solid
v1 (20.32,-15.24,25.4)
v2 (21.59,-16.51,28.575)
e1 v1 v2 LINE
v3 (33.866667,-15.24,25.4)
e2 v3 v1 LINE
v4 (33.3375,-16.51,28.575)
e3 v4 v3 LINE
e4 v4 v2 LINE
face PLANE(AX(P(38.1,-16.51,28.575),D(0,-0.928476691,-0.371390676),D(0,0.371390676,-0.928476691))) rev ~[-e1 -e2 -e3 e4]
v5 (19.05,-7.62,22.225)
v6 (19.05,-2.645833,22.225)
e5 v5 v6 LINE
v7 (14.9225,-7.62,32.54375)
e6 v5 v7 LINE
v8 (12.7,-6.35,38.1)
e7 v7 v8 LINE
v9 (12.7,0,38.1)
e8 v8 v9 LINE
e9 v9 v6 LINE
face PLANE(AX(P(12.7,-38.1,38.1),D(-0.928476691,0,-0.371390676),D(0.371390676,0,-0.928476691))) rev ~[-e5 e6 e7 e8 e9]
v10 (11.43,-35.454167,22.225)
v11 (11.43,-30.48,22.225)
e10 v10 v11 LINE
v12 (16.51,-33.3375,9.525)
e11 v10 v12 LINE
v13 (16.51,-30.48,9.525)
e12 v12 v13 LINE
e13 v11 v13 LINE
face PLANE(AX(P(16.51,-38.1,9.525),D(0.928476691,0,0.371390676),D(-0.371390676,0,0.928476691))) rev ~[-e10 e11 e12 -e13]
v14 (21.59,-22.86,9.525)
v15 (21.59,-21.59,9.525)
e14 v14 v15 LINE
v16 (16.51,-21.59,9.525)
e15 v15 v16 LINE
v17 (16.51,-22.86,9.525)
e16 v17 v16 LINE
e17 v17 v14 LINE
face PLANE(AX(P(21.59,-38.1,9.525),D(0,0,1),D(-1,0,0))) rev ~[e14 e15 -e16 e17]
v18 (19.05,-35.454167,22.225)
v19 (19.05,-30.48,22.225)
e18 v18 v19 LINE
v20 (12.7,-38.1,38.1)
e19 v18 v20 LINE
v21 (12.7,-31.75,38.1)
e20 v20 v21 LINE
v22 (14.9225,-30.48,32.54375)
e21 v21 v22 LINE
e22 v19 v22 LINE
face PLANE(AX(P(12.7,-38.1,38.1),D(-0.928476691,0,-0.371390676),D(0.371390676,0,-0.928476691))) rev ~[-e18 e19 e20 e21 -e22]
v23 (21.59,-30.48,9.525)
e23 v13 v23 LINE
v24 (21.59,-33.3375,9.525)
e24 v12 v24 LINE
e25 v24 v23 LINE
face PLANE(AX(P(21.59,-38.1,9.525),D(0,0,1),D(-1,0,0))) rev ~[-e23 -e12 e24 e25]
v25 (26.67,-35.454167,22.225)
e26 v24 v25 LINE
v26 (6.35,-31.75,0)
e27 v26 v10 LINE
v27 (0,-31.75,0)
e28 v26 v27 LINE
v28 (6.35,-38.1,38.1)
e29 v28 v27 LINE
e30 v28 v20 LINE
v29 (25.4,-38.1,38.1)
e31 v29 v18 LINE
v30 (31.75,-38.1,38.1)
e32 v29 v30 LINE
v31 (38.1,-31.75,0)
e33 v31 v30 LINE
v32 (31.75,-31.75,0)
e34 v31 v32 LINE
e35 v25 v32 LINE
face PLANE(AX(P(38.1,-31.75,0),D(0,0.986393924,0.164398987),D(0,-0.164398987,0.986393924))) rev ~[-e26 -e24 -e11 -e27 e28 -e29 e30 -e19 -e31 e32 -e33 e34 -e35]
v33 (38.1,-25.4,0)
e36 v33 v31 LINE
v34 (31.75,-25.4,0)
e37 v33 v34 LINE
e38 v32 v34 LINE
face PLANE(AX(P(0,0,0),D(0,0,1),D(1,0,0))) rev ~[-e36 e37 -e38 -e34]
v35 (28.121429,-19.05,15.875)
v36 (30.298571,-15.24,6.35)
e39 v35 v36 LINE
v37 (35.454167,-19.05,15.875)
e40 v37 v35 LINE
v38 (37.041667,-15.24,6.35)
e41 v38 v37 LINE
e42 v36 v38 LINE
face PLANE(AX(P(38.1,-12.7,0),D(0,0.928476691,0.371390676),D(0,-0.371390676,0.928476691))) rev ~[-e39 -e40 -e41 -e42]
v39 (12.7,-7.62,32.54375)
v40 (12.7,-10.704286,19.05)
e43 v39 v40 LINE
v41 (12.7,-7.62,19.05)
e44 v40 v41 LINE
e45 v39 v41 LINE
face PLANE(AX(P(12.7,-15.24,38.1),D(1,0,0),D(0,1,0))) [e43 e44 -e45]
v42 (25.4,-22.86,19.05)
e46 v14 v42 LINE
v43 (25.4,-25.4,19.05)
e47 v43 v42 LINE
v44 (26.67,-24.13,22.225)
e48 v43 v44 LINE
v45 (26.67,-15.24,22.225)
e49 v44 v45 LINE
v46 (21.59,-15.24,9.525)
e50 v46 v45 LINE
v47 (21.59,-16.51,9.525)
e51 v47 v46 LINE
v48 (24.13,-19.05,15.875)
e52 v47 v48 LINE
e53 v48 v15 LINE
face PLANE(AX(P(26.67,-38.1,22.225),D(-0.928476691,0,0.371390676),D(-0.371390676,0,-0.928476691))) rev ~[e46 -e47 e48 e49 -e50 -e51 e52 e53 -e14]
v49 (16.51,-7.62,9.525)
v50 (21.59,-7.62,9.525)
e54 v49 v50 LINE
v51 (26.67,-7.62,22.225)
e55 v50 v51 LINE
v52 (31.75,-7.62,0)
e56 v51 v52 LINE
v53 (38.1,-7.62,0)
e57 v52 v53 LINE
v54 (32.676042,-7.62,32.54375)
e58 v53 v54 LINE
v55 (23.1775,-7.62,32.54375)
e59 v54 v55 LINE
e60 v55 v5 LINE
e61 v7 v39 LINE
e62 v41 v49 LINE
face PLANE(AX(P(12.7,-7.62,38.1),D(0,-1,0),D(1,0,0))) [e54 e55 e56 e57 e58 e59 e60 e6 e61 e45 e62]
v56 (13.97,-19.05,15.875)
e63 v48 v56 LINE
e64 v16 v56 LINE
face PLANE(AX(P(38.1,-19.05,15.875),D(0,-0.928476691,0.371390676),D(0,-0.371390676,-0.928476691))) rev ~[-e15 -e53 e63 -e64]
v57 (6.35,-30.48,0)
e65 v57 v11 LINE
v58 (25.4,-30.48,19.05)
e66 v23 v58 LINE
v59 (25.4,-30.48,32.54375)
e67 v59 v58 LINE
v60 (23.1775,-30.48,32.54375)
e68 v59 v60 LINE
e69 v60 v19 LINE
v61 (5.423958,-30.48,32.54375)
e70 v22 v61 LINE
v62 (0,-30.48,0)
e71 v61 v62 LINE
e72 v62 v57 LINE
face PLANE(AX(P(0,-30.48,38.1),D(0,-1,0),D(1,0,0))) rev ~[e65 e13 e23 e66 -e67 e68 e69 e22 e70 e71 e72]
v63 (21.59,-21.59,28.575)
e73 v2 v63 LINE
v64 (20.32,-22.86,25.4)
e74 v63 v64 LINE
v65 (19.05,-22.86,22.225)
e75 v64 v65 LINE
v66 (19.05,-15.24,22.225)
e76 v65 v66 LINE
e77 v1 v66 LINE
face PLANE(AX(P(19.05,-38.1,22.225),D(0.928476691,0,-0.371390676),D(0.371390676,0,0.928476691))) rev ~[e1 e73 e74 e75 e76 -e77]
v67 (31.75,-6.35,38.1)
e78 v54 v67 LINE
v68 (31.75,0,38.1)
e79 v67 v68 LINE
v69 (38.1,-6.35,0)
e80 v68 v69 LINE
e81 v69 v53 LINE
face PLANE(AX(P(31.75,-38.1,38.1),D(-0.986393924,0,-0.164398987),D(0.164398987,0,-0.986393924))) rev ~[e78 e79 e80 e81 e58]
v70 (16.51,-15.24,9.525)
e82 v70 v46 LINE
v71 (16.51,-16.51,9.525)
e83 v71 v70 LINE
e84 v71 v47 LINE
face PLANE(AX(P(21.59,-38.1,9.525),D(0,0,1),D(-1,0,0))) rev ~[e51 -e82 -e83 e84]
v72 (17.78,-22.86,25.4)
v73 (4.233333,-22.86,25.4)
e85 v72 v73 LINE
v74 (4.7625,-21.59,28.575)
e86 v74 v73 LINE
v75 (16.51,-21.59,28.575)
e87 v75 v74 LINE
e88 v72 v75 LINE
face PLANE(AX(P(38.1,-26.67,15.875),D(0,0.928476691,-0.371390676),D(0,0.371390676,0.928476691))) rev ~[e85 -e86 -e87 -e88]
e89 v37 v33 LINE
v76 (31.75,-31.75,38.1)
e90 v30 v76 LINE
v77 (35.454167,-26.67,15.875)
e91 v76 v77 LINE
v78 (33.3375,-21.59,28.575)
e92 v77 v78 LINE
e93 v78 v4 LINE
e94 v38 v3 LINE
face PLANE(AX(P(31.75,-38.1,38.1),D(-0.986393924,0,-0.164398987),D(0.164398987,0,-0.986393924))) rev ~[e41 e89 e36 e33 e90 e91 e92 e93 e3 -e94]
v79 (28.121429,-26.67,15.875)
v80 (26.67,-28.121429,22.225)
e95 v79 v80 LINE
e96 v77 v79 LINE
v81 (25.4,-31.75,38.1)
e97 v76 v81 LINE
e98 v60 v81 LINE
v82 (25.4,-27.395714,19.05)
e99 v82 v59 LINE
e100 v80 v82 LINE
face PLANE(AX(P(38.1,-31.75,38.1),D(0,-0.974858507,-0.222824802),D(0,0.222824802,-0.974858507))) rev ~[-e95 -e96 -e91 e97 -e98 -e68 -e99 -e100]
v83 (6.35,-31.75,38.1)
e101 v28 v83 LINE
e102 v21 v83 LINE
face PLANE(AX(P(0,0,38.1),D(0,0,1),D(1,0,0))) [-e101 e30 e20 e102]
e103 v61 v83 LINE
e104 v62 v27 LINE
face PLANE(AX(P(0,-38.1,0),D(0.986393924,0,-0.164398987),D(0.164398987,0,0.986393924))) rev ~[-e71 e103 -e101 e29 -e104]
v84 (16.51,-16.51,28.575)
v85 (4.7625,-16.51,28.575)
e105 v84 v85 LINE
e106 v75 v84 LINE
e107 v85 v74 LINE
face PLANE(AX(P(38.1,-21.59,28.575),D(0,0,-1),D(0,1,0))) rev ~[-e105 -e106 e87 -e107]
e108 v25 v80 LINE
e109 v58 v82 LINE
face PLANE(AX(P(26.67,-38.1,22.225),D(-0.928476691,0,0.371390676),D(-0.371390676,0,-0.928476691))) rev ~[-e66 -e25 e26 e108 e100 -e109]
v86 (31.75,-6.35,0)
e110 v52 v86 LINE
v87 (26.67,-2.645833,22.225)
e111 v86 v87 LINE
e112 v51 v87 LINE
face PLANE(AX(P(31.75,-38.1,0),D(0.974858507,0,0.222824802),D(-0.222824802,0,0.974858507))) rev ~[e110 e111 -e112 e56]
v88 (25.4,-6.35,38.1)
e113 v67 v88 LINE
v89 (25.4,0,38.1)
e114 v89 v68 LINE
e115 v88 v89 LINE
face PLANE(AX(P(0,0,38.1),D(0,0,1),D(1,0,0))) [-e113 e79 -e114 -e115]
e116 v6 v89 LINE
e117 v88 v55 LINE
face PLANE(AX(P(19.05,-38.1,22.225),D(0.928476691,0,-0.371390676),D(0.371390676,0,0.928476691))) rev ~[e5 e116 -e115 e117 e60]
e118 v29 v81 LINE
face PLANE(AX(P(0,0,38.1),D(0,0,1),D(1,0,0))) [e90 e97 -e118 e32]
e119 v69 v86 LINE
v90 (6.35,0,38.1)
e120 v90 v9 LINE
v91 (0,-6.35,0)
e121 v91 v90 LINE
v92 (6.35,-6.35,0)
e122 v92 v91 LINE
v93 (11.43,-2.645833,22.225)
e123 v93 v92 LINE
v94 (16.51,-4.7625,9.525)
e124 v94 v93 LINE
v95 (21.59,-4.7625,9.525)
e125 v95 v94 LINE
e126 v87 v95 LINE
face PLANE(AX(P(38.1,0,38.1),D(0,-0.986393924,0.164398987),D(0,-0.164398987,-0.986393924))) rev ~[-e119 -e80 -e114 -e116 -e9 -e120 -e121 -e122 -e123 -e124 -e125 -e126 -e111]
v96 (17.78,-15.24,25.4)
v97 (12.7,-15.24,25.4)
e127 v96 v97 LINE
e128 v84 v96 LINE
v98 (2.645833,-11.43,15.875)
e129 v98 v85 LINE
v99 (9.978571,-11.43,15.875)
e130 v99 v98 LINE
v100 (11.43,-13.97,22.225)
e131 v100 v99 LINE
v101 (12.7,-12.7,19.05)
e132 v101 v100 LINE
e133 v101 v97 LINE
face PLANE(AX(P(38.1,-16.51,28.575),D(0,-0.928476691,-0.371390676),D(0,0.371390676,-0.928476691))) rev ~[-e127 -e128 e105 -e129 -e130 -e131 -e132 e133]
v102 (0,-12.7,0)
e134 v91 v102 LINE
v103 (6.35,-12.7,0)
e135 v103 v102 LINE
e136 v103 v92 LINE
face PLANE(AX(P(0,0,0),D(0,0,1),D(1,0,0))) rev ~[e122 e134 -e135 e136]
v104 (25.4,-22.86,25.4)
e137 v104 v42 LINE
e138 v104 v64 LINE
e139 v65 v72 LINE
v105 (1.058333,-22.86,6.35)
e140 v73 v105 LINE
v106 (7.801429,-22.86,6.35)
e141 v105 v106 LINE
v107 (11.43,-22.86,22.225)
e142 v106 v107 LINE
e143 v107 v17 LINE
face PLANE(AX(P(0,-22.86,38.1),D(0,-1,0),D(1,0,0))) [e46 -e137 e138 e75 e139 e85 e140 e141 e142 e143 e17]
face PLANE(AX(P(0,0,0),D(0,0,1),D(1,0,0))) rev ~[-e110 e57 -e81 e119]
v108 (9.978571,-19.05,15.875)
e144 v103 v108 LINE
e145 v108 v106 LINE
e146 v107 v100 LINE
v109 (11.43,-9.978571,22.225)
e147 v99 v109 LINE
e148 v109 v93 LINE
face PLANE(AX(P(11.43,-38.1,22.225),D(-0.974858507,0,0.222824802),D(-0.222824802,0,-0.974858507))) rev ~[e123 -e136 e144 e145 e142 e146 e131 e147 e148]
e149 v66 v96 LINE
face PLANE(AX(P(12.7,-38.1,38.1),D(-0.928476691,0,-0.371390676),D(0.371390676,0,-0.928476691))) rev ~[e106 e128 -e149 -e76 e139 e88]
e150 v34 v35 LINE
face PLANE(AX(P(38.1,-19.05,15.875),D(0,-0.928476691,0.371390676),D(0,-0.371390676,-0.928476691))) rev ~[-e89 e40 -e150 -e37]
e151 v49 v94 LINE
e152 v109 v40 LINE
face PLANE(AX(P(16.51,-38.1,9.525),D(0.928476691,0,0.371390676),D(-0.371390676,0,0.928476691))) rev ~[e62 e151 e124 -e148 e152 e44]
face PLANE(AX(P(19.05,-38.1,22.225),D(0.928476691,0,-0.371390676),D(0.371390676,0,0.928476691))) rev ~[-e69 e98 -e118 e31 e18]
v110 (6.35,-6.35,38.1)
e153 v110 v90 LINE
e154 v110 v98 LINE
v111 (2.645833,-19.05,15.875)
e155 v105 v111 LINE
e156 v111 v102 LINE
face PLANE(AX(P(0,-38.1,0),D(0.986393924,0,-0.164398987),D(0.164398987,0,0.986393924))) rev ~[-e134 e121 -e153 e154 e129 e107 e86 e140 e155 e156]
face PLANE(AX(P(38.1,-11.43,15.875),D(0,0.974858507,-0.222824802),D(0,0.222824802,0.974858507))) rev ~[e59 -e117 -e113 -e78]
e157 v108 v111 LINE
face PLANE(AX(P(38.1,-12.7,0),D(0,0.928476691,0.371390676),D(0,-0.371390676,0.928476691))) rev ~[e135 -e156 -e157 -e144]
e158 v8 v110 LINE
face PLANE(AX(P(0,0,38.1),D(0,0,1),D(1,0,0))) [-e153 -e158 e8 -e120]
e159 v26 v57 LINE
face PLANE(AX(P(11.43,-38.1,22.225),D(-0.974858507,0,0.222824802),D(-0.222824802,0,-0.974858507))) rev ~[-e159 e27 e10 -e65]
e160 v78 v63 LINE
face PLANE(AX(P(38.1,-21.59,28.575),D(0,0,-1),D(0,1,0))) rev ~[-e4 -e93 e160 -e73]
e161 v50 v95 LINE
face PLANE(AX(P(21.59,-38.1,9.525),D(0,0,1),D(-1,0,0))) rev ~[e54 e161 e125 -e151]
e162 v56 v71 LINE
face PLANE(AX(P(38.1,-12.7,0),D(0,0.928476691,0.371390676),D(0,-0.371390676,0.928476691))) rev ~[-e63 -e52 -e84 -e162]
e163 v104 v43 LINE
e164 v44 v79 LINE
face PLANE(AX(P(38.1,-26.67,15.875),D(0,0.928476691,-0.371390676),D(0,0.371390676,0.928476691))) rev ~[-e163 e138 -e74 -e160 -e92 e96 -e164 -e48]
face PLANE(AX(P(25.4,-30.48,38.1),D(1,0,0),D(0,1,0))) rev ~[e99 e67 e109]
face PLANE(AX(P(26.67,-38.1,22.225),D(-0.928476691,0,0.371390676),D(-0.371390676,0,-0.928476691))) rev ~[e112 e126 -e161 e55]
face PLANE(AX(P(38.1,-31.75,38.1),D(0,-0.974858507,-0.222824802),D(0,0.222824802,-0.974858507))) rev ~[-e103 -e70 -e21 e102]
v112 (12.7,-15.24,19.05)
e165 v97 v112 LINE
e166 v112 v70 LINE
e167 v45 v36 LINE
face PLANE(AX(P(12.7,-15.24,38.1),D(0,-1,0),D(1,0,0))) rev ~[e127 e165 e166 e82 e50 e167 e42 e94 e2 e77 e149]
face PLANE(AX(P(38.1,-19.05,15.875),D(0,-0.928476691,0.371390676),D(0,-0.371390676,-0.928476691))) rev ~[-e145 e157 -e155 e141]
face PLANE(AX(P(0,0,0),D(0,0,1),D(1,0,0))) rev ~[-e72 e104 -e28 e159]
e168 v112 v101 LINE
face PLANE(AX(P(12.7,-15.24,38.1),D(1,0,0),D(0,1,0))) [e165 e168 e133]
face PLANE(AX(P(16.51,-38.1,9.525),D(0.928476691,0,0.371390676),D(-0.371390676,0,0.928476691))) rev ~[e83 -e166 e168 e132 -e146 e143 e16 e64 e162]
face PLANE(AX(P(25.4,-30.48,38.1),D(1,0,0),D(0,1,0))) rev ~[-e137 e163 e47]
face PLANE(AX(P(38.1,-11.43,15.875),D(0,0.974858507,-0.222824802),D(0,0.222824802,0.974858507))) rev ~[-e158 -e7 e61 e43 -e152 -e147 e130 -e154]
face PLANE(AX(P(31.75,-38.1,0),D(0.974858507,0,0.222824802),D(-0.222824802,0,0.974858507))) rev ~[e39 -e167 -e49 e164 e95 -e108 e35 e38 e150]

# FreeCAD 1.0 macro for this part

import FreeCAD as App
import Part
import Sketcher
Q = App.Units.Quantity


def add_polygon(sketch, points):
    """Adds a closed chain of lines whose ends are joined by coincident constraints."""
    first, n = sketch.GeometryCount, len(points)
    for a, b in zip(points, points[1:] + points[:1]):
        sketch.addGeometry(Part.LineSegment(App.Vector(*a, 0), App.Vector(*b, 0)), False)
    for i in range(n):
        sketch.addConstraint(Sketcher.Constraint("Coincident", first + i, 2, first + (i + 1) % n, 1))

doc = App.newDocument("Part")
body = doc.addObject("PartDesign::Body", "Body")

# Sketch on XZ plane
sketch1 = body.newObject("Sketcher::SketchObject", "Sketch")
sketch1.AttachmentSupport = (doc.getObject("XZ_Plane"), [""])
sketch1.MapMode = "FlatFace"
add_polygon(sketch1, [(0, 38.1), (0, 0), (38.1, 0), (38.1, 38.1)])  # lines 0-3
sketch1.addConstraint([
    Sketcher.Constraint("Vertical", 0),
    Sketcher.Constraint("Horizontal", 1),
    Sketcher.Constraint("Vertical", 2),
    Sketcher.Constraint("Horizontal", 3),
    Sketcher.Constraint("Coincident", 0, 2, -1, 1),
    Sketcher.Constraint("Equal", 3, 0),
    Sketcher.Constraint("DistanceX", 1, 1, 1, 2, Q("1.5 in")),
])
pad1 = body.newObject("PartDesign::Pad", "Pad")
pad1.Profile = sketch1
pad1.Length = Q("1.5 in")

# Sketch on YZ plane
sketch2 = body.newObject("Sketcher::SketchObject", "Sketch001")
sketch2.AttachmentSupport = (doc.getObject("YZ_Plane"), [""])
sketch2.MapMode = "FlatFace"
sketch2.AttachmentOffset = App.Placement(App.Vector(0, 0, 1.5 * 25.4), App.Rotation())
add_polygon(sketch2, [(-6.35, 38.1), (-31.75, 38.1), (-26.67, 15.875), (-21.59, 28.575), (-16.51, 28.575), (-11.43, 15.875)])  # lines 0-5
add_polygon(sketch2, [(0, 0), (0, 38.1), (-6.35, 0)])  # lines 6-8
add_polygon(sketch2, [(-19.05, 15.875), (-25.4, 0), (-12.7, 0)])  # lines 9-11
add_polygon(sketch2, [(-31.75, 0), (-38.1, 38.1), (-38.1, 0)])  # lines 12-14
sketch2.addConstraint([
    Sketcher.Constraint("Horizontal", 0),
    Sketcher.Constraint("Horizontal", 3),
    Sketcher.Constraint("Vertical", 6),
    Sketcher.Constraint("Horizontal", 8),
    Sketcher.Constraint("Horizontal", 10),
    Sketcher.Constraint("Vertical", 13),
    Sketcher.Constraint("Horizontal", 14),
    Sketcher.Constraint("Coincident", 8, 2, -1, 1),
    Sketcher.Constraint("PointOnObject", 9, 2, -1),
    Sketcher.Constraint("PointOnObject", 13, 2, -1),
    Sketcher.Constraint("Parallel", 2, 9),
    Sketcher.Constraint("Parallel", 4, 11),
    Sketcher.Constraint("Horizontal", 1, 2, 4, 2),
    Sketcher.Constraint("Horizontal", 5, 2, 6, 2),
    Sketcher.Constraint("Horizontal", 4, 2, 11, 2),
    Sketcher.Constraint("Horizontal", 6, 2, 12, 2),
    Sketcher.Constraint("Vertical", 5, 2, 7, 2),
    Sketcher.Constraint("Vertical", 0, 2, 14, 2),
    Sketcher.Constraint("Equal", 8, 14),
    Sketcher.Constraint("Equal", 2, 4),
    Sketcher.Constraint("Equal", 1, 5),
    Sketcher.Constraint("DistanceX", 0, 2, 0, 1, Q("1 in")),
    Sketcher.Constraint("DistanceX", 3, 1, 3, 2, Q("0.2 in")),
    Sketcher.Constraint("DistanceX", 10, 1, 10, 2, Q("0.5 in")),
    Sketcher.Constraint("DistanceY", 6, 1, 6, 2, Q("1.5 in")),
    Sketcher.Constraint("DistanceX", 9, 2, -1, 1, Q("1 in")),
    Sketcher.Constraint("DistanceX", 13, 2, 10, 2, Q("1 in")),
    Sketcher.Constraint("DistanceX", 0, 2, 1, 2, Q("0.2 in")),
    Sketcher.Constraint("DistanceY", 1, 2, 2, 2, Q("0.5 in")),
])
pocket1 = body.newObject("PartDesign::Pocket", "Pocket")
pocket1.Profile = sketch2
pocket1.Length = Q("1.5 in")

# Sketch on XZ plane
sketch3 = body.newObject("Sketcher::SketchObject", "Sketch002")
sketch3.AttachmentSupport = (doc.getObject("XZ_Plane"), [""])
sketch3.MapMode = "FlatFace"
sketch3.AttachmentOffset = App.Placement(App.Vector(0, 0, 1.5 * 25.4), App.Rotation())
add_polygon(sketch3, [(0, 38.1), (0, 0), (6.35, 38.1)])  # lines 0-2
add_polygon(sketch3, [(25.4, 38.1), (12.7, 38.1), (19.05, 22.225)])  # lines 3-5
add_polygon(sketch3, [(31.75, 38.1), (38.1, 0), (38.1, 38.1)])  # lines 6-8
add_polygon(sketch3, [(11.43, 22.225), (6.35, 0), (31.75, 0), (26.67, 22.225), (21.59, 9.525), (16.51, 9.525)])  # lines 9-14
sketch3.addConstraint([
    Sketcher.Constraint("Vertical", 0),
    Sketcher.Constraint("Horizontal", 2),
    Sketcher.Constraint("Horizontal", 3),
    Sketcher.Constraint("Vertical", 7),
    Sketcher.Constraint("Horizontal", 8),
    Sketcher.Constraint("Horizontal", 10),
    Sketcher.Constraint("Horizontal", 13),
    Sketcher.Constraint("Coincident", 0, 2, -1, 1),
    Sketcher.Constraint("PointOnObject", 6, 2, -1),
    Sketcher.Constraint("PointOnObject", 9, 2, -1),
    Sketcher.Constraint("Parallel", 5, 12),
    Sketcher.Constraint("Parallel", 4, 14),
    Sketcher.Constraint("Horizontal", 2, 2, 3, 2),
    Sketcher.Constraint("Horizontal", 5, 2, 7, 2),
    Sketcher.Constraint("Horizontal", 4, 2, 11, 2),
    Sketcher.Constraint("Horizontal", 11, 2, 14, 2),
    Sketcher.Constraint("Vertical", 1, 2, 9, 2),
    Sketcher.Constraint("Vertical", 8, 2, 10, 2),
    Sketcher.Constraint("Equal", 2, 8),
    Sketcher.Constraint("Equal", 4, 5),
    Sketcher.Constraint("Equal", 9, 11),
    Sketcher.Constraint("DistanceX", 10, 1, 10, 2, Q("1 in")),
    Sketcher.Constraint("DistanceX", 3, 2, 3, 1, Q("0.5 in")),
    Sketcher.Constraint("DistanceX", 13, 2, 13, 1, Q("0.2 in")),
    Sketcher.Constraint("DistanceY", 0, 2, 0, 1, Q("1.5 in")),
    Sketcher.Constraint("DistanceX", -1, 1, 5, 2, Q("1 in")),
    Sketcher.Constraint("DistanceX", 3, 2, 6, 2, Q("1 in")),
    Sketcher.Constraint("DistanceX", 4, 2, 11, 2, Q("0.3 in")),
    Sketcher.Constraint("DistanceY", 12, 2, 4, 2, Q("0.5 in")),
])
pocket2 = body.newObject("PartDesign::Pocket", "Pocket001")
pocket2.Profile = sketch3
pocket2.Length = Q("1.5 in")

# Sketch on XY plane
sketch4 = body.newObject("Sketcher::SketchObject", "Sketch003")
sketch4.AttachmentSupport = (doc.getObject("XY_Plane"), [""])
sketch4.MapMode = "FlatFace"
sketch4.AttachmentOffset = App.Placement(App.Vector(0, 0, 1.5 * 25.4), App.Rotation())
add_polygon(sketch4, [(12.7, -7.62), (12.7, -15.24), (38.1, -15.24), (38.1, -7.62)])  # lines 0-3
add_polygon(sketch4, [(0, -22.86), (0, -30.48), (25.4, -30.48), (25.4, -22.86)])  # lines 4-7
sketch4.addConstraint([
    Sketcher.Constraint("Vertical", 0),
    Sketcher.Constraint("Horizontal", 1),
    Sketcher.Constraint("Vertical", 2),
    Sketcher.Constraint("Horizontal", 3),
    Sketcher.Constraint("Vertical", 4),
    Sketcher.Constraint("Horizontal", 5),
    Sketcher.Constraint("Vertical", 6),
    Sketcher.Constraint("Horizontal", 7),
    Sketcher.Constraint("PointOnObject", 4, 2, -2),
    Sketcher.Constraint("Equal", 3, 5),
    Sketcher.Constraint("Equal", 2, 4),
    Sketcher.Constraint("DistanceX", 1, 1, 1, 2, Q("1 in")),
    Sketcher.Constraint("DistanceY", 0, 2, 0, 1, Q("0.3 in")),
    Sketcher.Constraint("DistanceX", -1, 1, 0, 2, Q("0.5 in")),
    Sketcher.Constraint("DistanceY", 0, 2, -1, 1, Q("0.6 in")),
    Sketcher.Constraint("DistanceY", 4, 2, -1, 1, Q("1.2 in")),
])
pocket3 = body.newObject("PartDesign::Pocket", "Pocket002")
pocket3.Profile = sketch4
pocket3.Length = Q("1.5 in")

doc.recompute()
